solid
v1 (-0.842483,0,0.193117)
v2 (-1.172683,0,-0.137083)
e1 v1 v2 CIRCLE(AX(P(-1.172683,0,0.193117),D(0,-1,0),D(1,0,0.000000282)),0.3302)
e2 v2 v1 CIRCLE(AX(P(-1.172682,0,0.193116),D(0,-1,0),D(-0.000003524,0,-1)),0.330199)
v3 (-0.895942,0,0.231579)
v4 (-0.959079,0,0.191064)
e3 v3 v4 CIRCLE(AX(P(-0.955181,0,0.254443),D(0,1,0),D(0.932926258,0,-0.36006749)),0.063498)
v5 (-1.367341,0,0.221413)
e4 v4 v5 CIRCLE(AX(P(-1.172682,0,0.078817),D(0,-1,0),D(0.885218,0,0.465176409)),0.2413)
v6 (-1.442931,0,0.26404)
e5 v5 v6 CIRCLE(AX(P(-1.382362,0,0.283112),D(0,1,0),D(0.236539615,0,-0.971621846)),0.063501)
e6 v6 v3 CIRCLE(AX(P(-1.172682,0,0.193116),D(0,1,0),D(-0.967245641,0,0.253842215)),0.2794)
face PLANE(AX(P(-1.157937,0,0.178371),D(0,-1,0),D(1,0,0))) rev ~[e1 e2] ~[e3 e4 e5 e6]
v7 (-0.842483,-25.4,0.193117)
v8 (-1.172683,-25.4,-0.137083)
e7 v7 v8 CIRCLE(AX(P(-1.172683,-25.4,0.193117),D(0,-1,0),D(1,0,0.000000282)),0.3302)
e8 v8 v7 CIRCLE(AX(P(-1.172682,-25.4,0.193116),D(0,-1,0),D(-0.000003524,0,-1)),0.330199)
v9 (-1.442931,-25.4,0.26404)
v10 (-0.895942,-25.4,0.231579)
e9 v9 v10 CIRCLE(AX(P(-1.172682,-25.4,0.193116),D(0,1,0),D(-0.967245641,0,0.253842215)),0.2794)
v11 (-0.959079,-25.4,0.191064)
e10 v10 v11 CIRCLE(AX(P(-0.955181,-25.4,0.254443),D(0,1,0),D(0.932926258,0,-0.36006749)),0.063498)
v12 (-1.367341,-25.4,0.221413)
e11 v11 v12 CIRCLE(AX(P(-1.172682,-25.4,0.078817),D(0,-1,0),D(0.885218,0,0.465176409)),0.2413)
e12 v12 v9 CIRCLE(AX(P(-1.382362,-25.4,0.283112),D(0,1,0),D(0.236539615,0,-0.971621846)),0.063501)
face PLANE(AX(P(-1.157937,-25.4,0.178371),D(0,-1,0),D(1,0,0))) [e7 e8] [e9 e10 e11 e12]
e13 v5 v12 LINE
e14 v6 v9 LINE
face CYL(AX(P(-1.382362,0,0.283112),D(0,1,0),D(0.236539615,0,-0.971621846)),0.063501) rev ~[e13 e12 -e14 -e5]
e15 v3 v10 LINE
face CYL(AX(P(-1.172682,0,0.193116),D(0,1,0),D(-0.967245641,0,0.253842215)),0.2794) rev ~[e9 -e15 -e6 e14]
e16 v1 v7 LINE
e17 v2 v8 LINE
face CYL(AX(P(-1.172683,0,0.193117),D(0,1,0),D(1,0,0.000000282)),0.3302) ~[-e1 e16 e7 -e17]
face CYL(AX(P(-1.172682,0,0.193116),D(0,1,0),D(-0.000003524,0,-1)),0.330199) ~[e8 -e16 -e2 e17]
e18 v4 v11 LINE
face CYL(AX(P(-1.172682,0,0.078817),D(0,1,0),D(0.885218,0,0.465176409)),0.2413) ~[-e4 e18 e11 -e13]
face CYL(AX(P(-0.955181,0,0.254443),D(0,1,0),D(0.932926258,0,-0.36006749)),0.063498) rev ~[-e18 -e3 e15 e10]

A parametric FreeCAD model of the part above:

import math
import FreeCAD as App
import Part
import Sketcher
Q = App.Units.Quantity

doc = App.newDocument("Part")
body = doc.addObject("PartDesign::Body", "Body")

# Sketch on XZ plane
sketch1 = body.newObject("Sketcher::SketchObject", "Sketch")
sketch1.AttachmentSupport = (doc.getObject("XZ_Plane"), [""])
sketch1.MapMode = "FlatFace"
sketch1.addGeometry(Part.ArcOfCircle(Part.Circle(App.Vector(-1.17, 0.19, 0), App.Vector(0, 0, 1), 0.33), math.radians(0), math.radians(270)), False)
sketch1.addGeometry(Part.ArcOfCircle(Part.Circle(App.Vector(-1.17, 0.19, 0), App.Vector(0, 0, 1), 0.33), math.radians(-90), math.radians(0)), False)
sketch1.addGeometry(Part.ArcOfCircle(Part.Circle(App.Vector(-1.17, 0.19, 0), App.Vector(0, 0, 1), 0.28), math.radians(8), math.radians(165)), False)
sketch1.addGeometry(Part.ArcOfCircle(Part.Circle(App.Vector(-0.96, 0.25, 0), App.Vector(0, 0, 1), 0.06), math.radians(-94), math.radians(-21)), False)
sketch1.addGeometry(Part.ArcOfCircle(Part.Circle(App.Vector(-1.17, 0.08, 0), App.Vector(0, 0, 1), 0.24), math.radians(28), math.radians(144)), False)
sketch1.addGeometry(Part.ArcOfCircle(Part.Circle(App.Vector(-1.38, 0.28, 0), App.Vector(0, 0, 1), 0.06), math.radians(-163), math.radians(-76)), False)
sketch1.addConstraint(Sketcher.Constraint("Coincident", 0, 1, 1, 2))
sketch1.addConstraint(Sketcher.Constraint("Coincident", 1, 1, 0, 2))
sketch1.addConstraint(Sketcher.Constraint("Coincident", 2, 1, 3, 2))
sketch1.addConstraint(Sketcher.Constraint("Coincident", 3, 1, 4, 1))
sketch1.addConstraint(Sketcher.Constraint("Coincident", 4, 2, 5, 2))
sketch1.addConstraint(Sketcher.Constraint("Coincident", 5, 1, 2, 2))
sketch1.addConstraint(Sketcher.Constraint("Coincident", 2, 3, 0, 3))
sketch1.addConstraint(Sketcher.Constraint("Equal", 0, 1))
sketch1.addConstraint(Sketcher.Constraint("Horizontal", 2, 3, 0, 1))
sketch1.addConstraint(Sketcher.Constraint("Vertical", 2, 3, 4, 3))
sketch1.addConstraint(Sketcher.Constraint("Vertical", 4, 3, 1, 1))
sketch1.addConstraint(Sketcher.Constraint("Radius", 0, Q("0.013 in")))
sketch1.addConstraint(Sketcher.Constraint("Radius", 2, Q("0.011 in")))
sketch1.addConstraint(Sketcher.Constraint("Radius", 3, Q("0.0024999 in")))
sketch1.addConstraint(Sketcher.Constraint("Radius", 4, Q("0.0095 in")))
sketch1.addConstraint(Sketcher.Constraint("Radius", 5, Q("0.0025 in")))
sketch1.addConstraint(Sketcher.Constraint("DistanceY", 4, 3, 1, 3, Q("0.0045 in")))
sketch1.addConstraint(Sketcher.Constraint("DistanceY", 2, 1, 3, 3, Q("0.0009001 in")))
sketch1.addConstraint(Sketcher.Constraint("DistanceX", 1, 3, 3, 3, Q("0.2175 mm")))
sketch1.addConstraint(Sketcher.Constraint("DistanceY", 4, 2, 5, 3, Q("0.061699 mm")))
sketch1.addConstraint(Sketcher.Constraint("DistanceX", 1, 3, -1, 1, Q("1.172682 mm")))
sketch1.addConstraint(Sketcher.Constraint("DistanceX", 5, 3, -1, 1, Q("1.382362 mm")))
sketch1.addConstraint(Sketcher.Constraint("DistanceY", -1, 1, 2, 1, Q("0.231579 mm")))
pad1 = body.newObject("PartDesign::Pad", "Pad")
pad1.Profile = sketch1
pad1.Length = Q("1 in")

doc.recompute()
